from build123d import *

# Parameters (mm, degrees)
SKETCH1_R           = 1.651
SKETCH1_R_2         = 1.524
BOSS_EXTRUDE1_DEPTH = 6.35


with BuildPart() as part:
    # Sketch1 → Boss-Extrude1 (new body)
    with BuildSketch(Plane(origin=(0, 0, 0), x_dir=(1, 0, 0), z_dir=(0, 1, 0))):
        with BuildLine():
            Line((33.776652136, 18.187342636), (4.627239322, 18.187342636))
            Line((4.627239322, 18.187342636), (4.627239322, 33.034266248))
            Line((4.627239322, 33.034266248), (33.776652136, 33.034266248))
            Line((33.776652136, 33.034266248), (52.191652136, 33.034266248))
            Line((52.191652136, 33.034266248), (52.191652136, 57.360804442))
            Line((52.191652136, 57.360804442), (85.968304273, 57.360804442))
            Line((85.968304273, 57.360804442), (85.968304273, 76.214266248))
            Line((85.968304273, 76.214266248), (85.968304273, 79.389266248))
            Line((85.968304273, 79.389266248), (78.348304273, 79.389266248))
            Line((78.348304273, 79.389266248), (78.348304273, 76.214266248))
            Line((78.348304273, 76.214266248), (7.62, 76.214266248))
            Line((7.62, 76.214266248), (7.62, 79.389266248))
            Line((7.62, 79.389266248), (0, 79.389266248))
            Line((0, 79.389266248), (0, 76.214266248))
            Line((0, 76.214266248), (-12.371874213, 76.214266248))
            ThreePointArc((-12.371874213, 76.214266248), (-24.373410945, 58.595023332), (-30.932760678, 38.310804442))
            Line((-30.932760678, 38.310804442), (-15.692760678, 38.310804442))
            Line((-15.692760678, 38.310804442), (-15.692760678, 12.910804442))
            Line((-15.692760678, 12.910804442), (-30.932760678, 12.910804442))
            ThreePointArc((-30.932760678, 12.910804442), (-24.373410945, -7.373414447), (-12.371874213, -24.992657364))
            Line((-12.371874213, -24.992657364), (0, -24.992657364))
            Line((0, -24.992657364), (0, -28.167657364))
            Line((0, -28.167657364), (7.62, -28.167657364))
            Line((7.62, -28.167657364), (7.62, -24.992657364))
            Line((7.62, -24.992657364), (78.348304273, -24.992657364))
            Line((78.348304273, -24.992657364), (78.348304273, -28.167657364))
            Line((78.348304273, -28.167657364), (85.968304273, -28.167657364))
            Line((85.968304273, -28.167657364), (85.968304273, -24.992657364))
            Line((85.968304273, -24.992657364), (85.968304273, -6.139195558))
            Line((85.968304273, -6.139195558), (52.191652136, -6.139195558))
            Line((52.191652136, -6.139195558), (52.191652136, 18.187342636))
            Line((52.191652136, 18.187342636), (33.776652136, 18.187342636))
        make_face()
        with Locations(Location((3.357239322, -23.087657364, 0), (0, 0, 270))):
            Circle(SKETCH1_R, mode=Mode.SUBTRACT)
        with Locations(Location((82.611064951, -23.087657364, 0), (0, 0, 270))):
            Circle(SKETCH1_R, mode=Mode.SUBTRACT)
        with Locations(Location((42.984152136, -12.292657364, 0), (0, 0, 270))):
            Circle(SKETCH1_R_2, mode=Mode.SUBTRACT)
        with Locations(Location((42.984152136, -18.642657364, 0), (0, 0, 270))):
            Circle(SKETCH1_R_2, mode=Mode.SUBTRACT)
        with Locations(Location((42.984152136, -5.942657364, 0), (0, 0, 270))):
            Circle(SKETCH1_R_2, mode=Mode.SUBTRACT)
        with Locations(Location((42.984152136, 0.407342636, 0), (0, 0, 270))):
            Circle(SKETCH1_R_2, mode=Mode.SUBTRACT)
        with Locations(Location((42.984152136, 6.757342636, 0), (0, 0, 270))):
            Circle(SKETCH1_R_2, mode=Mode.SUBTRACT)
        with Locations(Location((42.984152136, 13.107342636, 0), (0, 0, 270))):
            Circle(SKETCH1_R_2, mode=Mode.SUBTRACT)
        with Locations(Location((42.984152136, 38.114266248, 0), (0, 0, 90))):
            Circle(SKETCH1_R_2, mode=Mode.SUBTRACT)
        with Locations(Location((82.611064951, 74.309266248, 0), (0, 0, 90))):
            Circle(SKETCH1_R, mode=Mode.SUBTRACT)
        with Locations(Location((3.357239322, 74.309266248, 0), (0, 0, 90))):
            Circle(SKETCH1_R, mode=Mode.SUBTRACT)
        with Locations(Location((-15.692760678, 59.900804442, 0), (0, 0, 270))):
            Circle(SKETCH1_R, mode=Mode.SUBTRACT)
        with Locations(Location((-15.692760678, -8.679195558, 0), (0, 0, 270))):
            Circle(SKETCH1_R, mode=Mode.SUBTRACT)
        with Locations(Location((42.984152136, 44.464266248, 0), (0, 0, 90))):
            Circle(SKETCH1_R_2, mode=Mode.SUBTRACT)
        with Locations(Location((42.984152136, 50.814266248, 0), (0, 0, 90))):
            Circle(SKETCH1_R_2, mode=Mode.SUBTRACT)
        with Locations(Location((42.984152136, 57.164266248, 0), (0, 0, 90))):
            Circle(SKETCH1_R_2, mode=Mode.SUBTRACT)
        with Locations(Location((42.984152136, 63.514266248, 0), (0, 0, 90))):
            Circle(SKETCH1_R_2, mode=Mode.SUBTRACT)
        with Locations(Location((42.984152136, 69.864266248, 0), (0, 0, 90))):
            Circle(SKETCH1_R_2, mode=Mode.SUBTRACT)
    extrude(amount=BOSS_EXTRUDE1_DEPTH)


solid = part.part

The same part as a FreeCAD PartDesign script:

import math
import FreeCAD as App
import Part
import Sketcher
from FreeCAD import Vector
Q = App.Units.Quantity

doc = App.newDocument("Part")
body = doc.addObject("PartDesign::Body", "Body")

# Sketch on XZ plane
sketch1 = body.newObject("Sketcher::SketchObject", "Sketch")
sketch1.AttachmentSupport = (doc.getObject("XZ_Plane"), [""])
sketch1.MapMode = "FlatFace"
sketch1.addGeometry(Part.LineSegment(Vector(4.6, -18.2, 0), Vector(4.6, -33, 0)), False)
sketch1.addGeometry(Part.LineSegment(Vector(4.6, -33, 0), Vector(52.2, -33, 0)), False)
sketch1.addGeometry(Part.LineSegment(Vector(52.2, -33, 0), Vector(52.2, -57.4, 0)), False)
sketch1.addGeometry(Part.LineSegment(Vector(52.2, -57.4, 0), Vector(86, -57.4, 0)), False)
sketch1.addGeometry(Part.LineSegment(Vector(86, -57.4, 0), Vector(86, -79.4, 0)), False)
sketch1.addGeometry(Part.LineSegment(Vector(86, -79.4, 0), Vector(78.3, -79.4, 0)), False)
sketch1.addGeometry(Part.LineSegment(Vector(78.3, -79.4, 0), Vector(78.3, -76.2, 0)), False)
sketch1.addGeometry(Part.LineSegment(Vector(78.3, -76.2, 0), Vector(7.6, -76.2, 0)), False)
sketch1.addGeometry(Part.LineSegment(Vector(7.6, -76.2, 0), Vector(7.6, -79.4, 0)), False)
sketch1.addGeometry(Part.LineSegment(Vector(7.6, -79.4, 0), Vector(0, -79.4, 0)), False)
sketch1.addGeometry(Part.LineSegment(Vector(0, -79.4, 0), Vector(0, -76.2, 0)), False)
sketch1.addGeometry(Part.LineSegment(Vector(0, -76.2, 0), Vector(-12.4, -76.2, 0)), False)
sketch1.addGeometry(Part.ArcOfCircle(Part.Circle(Vector(43, -25.6, 0), Vector(0, 0, 1), 75), math.radians(-170), math.radians(-138)), False)
sketch1.addGeometry(Part.LineSegment(Vector(-30.9, -38.3, 0), Vector(-15.7, -38.3, 0)), False)
sketch1.addGeometry(Part.LineSegment(Vector(-15.7, -38.3, 0), Vector(-15.7, -12.9, 0)), False)
sketch1.addGeometry(Part.LineSegment(Vector(-15.7, -12.9, 0), Vector(-30.9, -12.9, 0)), False)
sketch1.addGeometry(Part.ArcOfCircle(Part.Circle(Vector(43, -25.6, 0), Vector(0, 0, 1), 75), math.radians(138), math.radians(170)), False)
sketch1.addGeometry(Part.LineSegment(Vector(-12.4, 25, 0), Vector(0, 25, 0)), False)
sketch1.addGeometry(Part.LineSegment(Vector(0, 25, 0), Vector(0, 28.2, 0)), False)
sketch1.addGeometry(Part.LineSegment(Vector(0, 28.2, 0), Vector(7.6, 28.2, 0)), False)
sketch1.addGeometry(Part.LineSegment(Vector(7.6, 28.2, 0), Vector(7.6, 25, 0)), False)
sketch1.addGeometry(Part.LineSegment(Vector(7.6, 25, 0), Vector(78.3, 25, 0)), False)
sketch1.addGeometry(Part.LineSegment(Vector(78.3, 25, 0), Vector(78.3, 28.2, 0)), False)
sketch1.addGeometry(Part.LineSegment(Vector(78.3, 28.2, 0), Vector(86, 28.2, 0)), False)
sketch1.addGeometry(Part.LineSegment(Vector(86, 28.2, 0), Vector(86, 6.1, 0)), False)
sketch1.addGeometry(Part.LineSegment(Vector(86, 6.1, 0), Vector(52.2, 6.1, 0)), False)
sketch1.addGeometry(Part.LineSegment(Vector(52.2, 6.1, 0), Vector(52.2, -18.2, 0)), False)
sketch1.addGeometry(Part.LineSegment(Vector(52.2, -18.2, 0), Vector(4.6, -18.2, 0)), False)
sketch1.addGeometry(Part.Circle(Vector(3.4, 23.1, 0), Vector(0, 0, 1), 1.7), False)
sketch1.addGeometry(Part.Circle(Vector(-15.7, 8.7, 0), Vector(0, 0, 1), 1.7), False)
sketch1.addGeometry(Part.Circle(Vector(43, 18.6, 0), Vector(0, 0, 1), 1.5), False)
sketch1.addGeometry(Part.Circle(Vector(43, 12.3, 0), Vector(0, 0, 1), 1.5), False)
sketch1.addGeometry(Part.Circle(Vector(43, 5.9, 0), Vector(0, 0, 1), 1.5), False)
sketch1.addGeometry(Part.Circle(Vector(43, -0.4, 0), Vector(0, 0, 1), 1.5), False)
sketch1.addGeometry(Part.Circle(Vector(82.6, 23.1, 0), Vector(0, 0, 1), 1.7), False)
sketch1.addGeometry(Part.Circle(Vector(43, -6.8, 0), Vector(0, 0, 1), 1.5), False)
sketch1.addGeometry(Part.Circle(Vector(43, -13.1, 0), Vector(0, 0, 1), 1.5), False)
sketch1.addGeometry(Part.Circle(Vector(-15.7, -59.9, 0), Vector(0, 0, 1), 1.7), False)
sketch1.addGeometry(Part.Circle(Vector(3.4, -74.3, 0), Vector(0, 0, 1), 1.7), False)
sketch1.addGeometry(Part.Circle(Vector(43, -38.1, 0), Vector(0, 0, 1), 1.5), False)
sketch1.addGeometry(Part.Circle(Vector(43, -44.5, 0), Vector(0, 0, 1), 1.5), False)
sketch1.addGeometry(Part.Circle(Vector(43, -50.8, 0), Vector(0, 0, 1), 1.5), False)
sketch1.addGeometry(Part.Circle(Vector(43, -57.2, 0), Vector(0, 0, 1), 1.5), False)
sketch1.addGeometry(Part.Circle(Vector(43, -63.5, 0), Vector(0, 0, 1), 1.5), False)
sketch1.addGeometry(Part.Circle(Vector(43, -69.9, 0), Vector(0, 0, 1), 1.5), False)
sketch1.addGeometry(Part.Circle(Vector(82.6, -74.3, 0), Vector(0, 0, 1), 1.7), False)
sketch1.addConstraint(Sketcher.Constraint("Coincident", 0, 2, 1, 1))
sketch1.addConstraint(Sketcher.Constraint("Coincident", 1, 2, 2, 1))
sketch1.addConstraint(Sketcher.Constraint("Coincident", 2, 2, 3, 1))
sketch1.addConstraint(Sketcher.Constraint("Coincident", 3, 2, 4, 1))
sketch1.addConstraint(Sketcher.Constraint("Coincident", 4, 2, 5, 1))
sketch1.addConstraint(Sketcher.Constraint("Coincident", 5, 2, 6, 1))
sketch1.addConstraint(Sketcher.Constraint("Coincident", 6, 2, 7, 1))
sketch1.addConstraint(Sketcher.Constraint("Coincident", 7, 2, 8, 1))
sketch1.addConstraint(Sketcher.Constraint("Coincident", 8, 2, 9, 1))
sketch1.addConstraint(Sketcher.Constraint("Coincident", 9, 2, 10, 1))
sketch1.addConstraint(Sketcher.Constraint("Coincident", 10, 2, 11, 1))
sketch1.addConstraint(Sketcher.Constraint("Coincident", 11, 2, 12, 2))
sketch1.addConstraint(Sketcher.Constraint("Coincident", 12, 1, 13, 1))
sketch1.addConstraint(Sketcher.Constraint("Coincident", 13, 2, 14, 1))
sketch1.addConstraint(Sketcher.Constraint("Coincident", 14, 2, 15, 1))
sketch1.addConstraint(Sketcher.Constraint("Coincident", 15, 2, 16, 2))
sketch1.addConstraint(Sketcher.Constraint("Coincident", 16, 1, 17, 1))
sketch1.addConstraint(Sketcher.Constraint("Coincident", 17, 2, 18, 1))
sketch1.addConstraint(Sketcher.Constraint("Coincident", 18, 2, 19, 1))
sketch1.addConstraint(Sketcher.Constraint("Coincident", 19, 2, 20, 1))
sketch1.addConstraint(Sketcher.Constraint("Coincident", 20, 2, 21, 1))
sketch1.addConstraint(Sketcher.Constraint("Coincident", 21, 2, 22, 1))
sketch1.addConstraint(Sketcher.Constraint("Coincident", 22, 2, 23, 1))
sketch1.addConstraint(Sketcher.Constraint("Coincident", 23, 2, 24, 1))
sketch1.addConstraint(Sketcher.Constraint("Coincident", 24, 2, 25, 1))
sketch1.addConstraint(Sketcher.Constraint("Coincident", 25, 2, 26, 1))
sketch1.addConstraint(Sketcher.Constraint("Coincident", 26, 2, 27, 1))
sketch1.addConstraint(Sketcher.Constraint("Coincident", 27, 2, 0, 1))
sketch1.addConstraint(Sketcher.Constraint("Vertical", 0))
sketch1.addConstraint(Sketcher.Constraint("Horizontal", 1))
sketch1.addConstraint(Sketcher.Constraint("Vertical", 2))
sketch1.addConstraint(Sketcher.Constraint("Horizontal", 3))
sketch1.addConstraint(Sketcher.Constraint("Vertical", 4))
sketch1.addConstraint(Sketcher.Constraint("Horizontal", 5))
sketch1.addConstraint(Sketcher.Constraint("Vertical", 6))
sketch1.addConstraint(Sketcher.Constraint("Horizontal", 7))
sketch1.addConstraint(Sketcher.Constraint("Vertical", 8))
sketch1.addConstraint(Sketcher.Constraint("Horizontal", 9))
sketch1.addConstraint(Sketcher.Constraint("Vertical", 10))
sketch1.addConstraint(Sketcher.Constraint("Horizontal", 11))
sketch1.addConstraint(Sketcher.Constraint("Horizontal", 13))
sketch1.addConstraint(Sketcher.Constraint("Vertical", 14))
sketch1.addConstraint(Sketcher.Constraint("Horizontal", 15))
sketch1.addConstraint(Sketcher.Constraint("Horizontal", 17))
sketch1.addConstraint(Sketcher.Constraint("Vertical", 18))
sketch1.addConstraint(Sketcher.Constraint("Horizontal", 19))
sketch1.addConstraint(Sketcher.Constraint("Vertical", 20))
sketch1.addConstraint(Sketcher.Constraint("Horizontal", 21))
sketch1.addConstraint(Sketcher.Constraint("Vertical", 22))
sketch1.addConstraint(Sketcher.Constraint("Horizontal", 23))
sketch1.addConstraint(Sketcher.Constraint("Vertical", 24))
sketch1.addConstraint(Sketcher.Constraint("Horizontal", 25))
sketch1.addConstraint(Sketcher.Constraint("Vertical", 26))
sketch1.addConstraint(Sketcher.Constraint("Horizontal", 27))
sketch1.addConstraint(Sketcher.Constraint("Coincident", 16, 3, 12, 3))
sketch1.addConstraint(Sketcher.Constraint("Equal", 12, 16))
sketch1.addConstraint(Sketcher.Constraint("Equal", 28, 29))
sketch1.addConstraint(Sketcher.Constraint("Equal", 30, 31))
sketch1.addConstraint(Sketcher.Constraint("Equal", 31, 32))
sketch1.addConstraint(Sketcher.Constraint("Equal", 32, 33))
sketch1.addConstraint(Sketcher.Constraint("Equal", 29, 34))
sketch1.addConstraint(Sketcher.Constraint("Equal", 33, 35))
sketch1.addConstraint(Sketcher.Constraint("Equal", 35, 36))
sketch1.addConstraint(Sketcher.Constraint("Equal", 34, 37))
sketch1.addConstraint(Sketcher.Constraint("Equal", 37, 38))
sketch1.addConstraint(Sketcher.Constraint("Equal", 36, 39))
sketch1.addConstraint(Sketcher.Constraint("Equal", 39, 40))
sketch1.addConstraint(Sketcher.Constraint("Equal", 40, 41))
sketch1.addConstraint(Sketcher.Constraint("Equal", 41, 42))
sketch1.addConstraint(Sketcher.Constraint("Equal", 42, 43))
sketch1.addConstraint(Sketcher.Constraint("Equal", 43, 44))
sketch1.addConstraint(Sketcher.Constraint("Equal", 38, 45))
sketch1.addConstraint(Sketcher.Constraint("PointOnObject", 9, 2, -2))
sketch1.addConstraint(Sketcher.Constraint("PointOnObject", 17, 2, -2))
sketch1.addConstraint(Sketcher.Constraint("Horizontal", 28, 3, 34, 3))
sketch1.addConstraint(Sketcher.Constraint("Horizontal", 38, 3, 45, 3))
sketch1.addConstraint(Sketcher.Constraint("Horizontal", 5, 2, 8, 2))
sketch1.addConstraint(Sketcher.Constraint("Horizontal", 7, 2, 10, 2))
sketch1.addConstraint(Sketcher.Constraint("Horizontal", 17, 2, 20, 2))
sketch1.addConstraint(Sketcher.Constraint("Horizontal", 19, 2, 22, 2))
sketch1.addConstraint(Sketcher.Constraint("Vertical", 16, 3, 30, 3))
sketch1.addConstraint(Sketcher.Constraint("Vertical", 30, 3, 31, 3))
sketch1.addConstraint(Sketcher.Constraint("Vertical", 31, 3, 32, 3))
sketch1.addConstraint(Sketcher.Constraint("Vertical", 32, 3, 33, 3))
sketch1.addConstraint(Sketcher.Constraint("Vertical", 33, 3, 35, 3))
sketch1.addConstraint(Sketcher.Constraint("Vertical", 35, 3, 36, 3))
sketch1.addConstraint(Sketcher.Constraint("Vertical", 29, 3, 37, 3))
sketch1.addConstraint(Sketcher.Constraint("Vertical", 28, 3, 38, 3))
sketch1.addConstraint(Sketcher.Constraint("Vertical", 36, 3, 39, 3))
sketch1.addConstraint(Sketcher.Constraint("Vertical", 39, 3, 40, 3))
sketch1.addConstraint(Sketcher.Constraint("Vertical", 40, 3, 41, 3))
sketch1.addConstraint(Sketcher.Constraint("Vertical", 41, 3, 42, 3))
sketch1.addConstraint(Sketcher.Constraint("Vertical", 42, 3, 43, 3))
sketch1.addConstraint(Sketcher.Constraint("Vertical", 43, 3, 44, 3))
sketch1.addConstraint(Sketcher.Constraint("Vertical", 34, 3, 45, 3))
sketch1.addConstraint(Sketcher.Constraint("Vertical", 37, 3, 13, 2))
sketch1.addConstraint(Sketcher.Constraint("Vertical", 12, 1, 15, 2))
sketch1.addConstraint(Sketcher.Constraint("Vertical", 11, 2, 16, 1))
sketch1.addConstraint(Sketcher.Constraint("Vertical", 8, 2, 19, 2))
sketch1.addConstraint(Sketcher.Constraint("Vertical", 6, 2, 21, 2))
sketch1.addConstraint(Sketcher.Constraint("Vertical", 4, 2, 23, 2))
sketch1.addConstraint(Sketcher.Constraint("Vertical", 2, 2, 25, 2))
sketch1.addConstraint(Sketcher.Constraint("Equal", 5, 9))
sketch1.addConstraint(Sketcher.Constraint("Equal", 10, 18))
sketch1.addConstraint(Sketcher.Constraint("Equal", 4, 24))
sketch1.addConstraint(Sketcher.Constraint("Equal", 2, 26))
sketch1.addConstraint(Sketcher.Constraint("Diameter", 28, Q("0.13 in")))
sketch1.addConstraint(Sketcher.Constraint("Diameter", 30, Q("0.12 in")))
sketch1.addConstraint(Sketcher.Constraint("DistanceY", 14, 1, 14, 2, Q("1 in")))
sketch1.addConstraint(Sketcher.Constraint("DistanceX", 5, 2, 5, 1, Q("0.3 in")))
sketch1.addConstraint(Sketcher.Constraint("DistanceX", 13, 1, 13, 2, Q("0.6 in")))
sketch1.addConstraint(Sketcher.Constraint("DistanceY", 43, 3, 39, 3, Q("1 in")))
sketch1.addConstraint(Sketcher.Constraint("DistanceY", 44, 3, 40, 3, Q("1 in")))
sketch1.addConstraint(Sketcher.Constraint("DistanceY", 33, 3, 21, 2, Q("1 in")))
sketch1.addConstraint(Sketcher.Constraint("DistanceY", 32, 3, 30, 3, Q("0.5 in")))
sketch1.addConstraint(Sketcher.Constraint("DistanceY", 33, 3, 31, 3, Q("0.5 in")))
sketch1.addConstraint(Sketcher.Constraint("DistanceY", 35, 3, 32, 3, Q("0.5 in")))
sketch1.addConstraint(Sketcher.Constraint("DistanceY", 36, 3, 33, 3, Q("0.5 in")))
sketch1.addConstraint(Sketcher.Constraint("DistanceY", 37, 3, 29, 3, Q("2.7 in")))
sketch1.addConstraint(Sketcher.Constraint("DistanceY", 41, 3, 39, 3, Q("0.5 in")))
sketch1.addConstraint(Sketcher.Constraint("DistanceY", 42, 3, 40, 3, Q("0.5 in")))
sketch1.addConstraint(Sketcher.Constraint("DistanceX", 37, 3, 0, 2, Q("0.8 in")))
sketch1.addConstraint(Sketcher.Constraint("DistanceY", 39, 3, 0, 2, Q("0.2 in")))
sketch1.addConstraint(Sketcher.Constraint("DistanceY", 4, 2, 45, 3, Q("0.2 in")))
sketch1.addConstraint(Sketcher.Constraint("DistanceY", 7, 2, 43, 3, Q("0.5 in")))
sketch1.addConstraint(Sketcher.Constraint("DistanceY", 28, 3, 18, 2, Q("0.2 in")))
sketch1.addConstraint(Sketcher.Constraint("DistanceY", 6, 1, 6, 2, Q("0.125 in")))
sketch1.addConstraint(Sketcher.Constraint("Radius", 12, 75.0))
sketch1.addConstraint(Sketcher.Constraint("DistanceX", 29, 3, 28, 3, Q("0.75 in")))
sketch1.addConstraint(Sketcher.Constraint("DistanceY", 12, 3, 29, 3, Q("1.35 in")))
sketch1.addConstraint(Sketcher.Constraint("DistanceY", 31, 3, 30, 3, Q("0.25 in")))
sketch1.addConstraint(Sketcher.Constraint("DistanceY", 40, 3, 39, 3, Q("0.25 in")))
sketch1.addConstraint(Sketcher.Constraint("DistanceX", 39, 3, 1, 2, Q("0.3625 in")))
sketch1.addConstraint(Sketcher.Constraint("DistanceY", 2, 2, 2, 1, 24.326538))
sketch1.addConstraint(Sketcher.Constraint("DistanceX", 3, 1, 3, 2, 33.776652))
sketch1.addConstraint(Sketcher.Constraint("DistanceX", 7, 2, 7, 1, 70.728304))
sketch1.addConstraint(Sketcher.Constraint("DistanceX", 11, 2, 11, 1, 12.371874))
sketch1.addConstraint(Sketcher.Constraint("DistanceX", 45, 3, 3, 2, 3.357239))
sketch1.addConstraint(Sketcher.Constraint("DistanceY", 12, 3, -1, 1, 25.610804))
pad1 = body.newObject("PartDesign::Pad", "Pad")
pad1.Profile = sketch1
pad1.Length = Q("0.25 in")
pad1.Reversed = True

doc.recompute()
